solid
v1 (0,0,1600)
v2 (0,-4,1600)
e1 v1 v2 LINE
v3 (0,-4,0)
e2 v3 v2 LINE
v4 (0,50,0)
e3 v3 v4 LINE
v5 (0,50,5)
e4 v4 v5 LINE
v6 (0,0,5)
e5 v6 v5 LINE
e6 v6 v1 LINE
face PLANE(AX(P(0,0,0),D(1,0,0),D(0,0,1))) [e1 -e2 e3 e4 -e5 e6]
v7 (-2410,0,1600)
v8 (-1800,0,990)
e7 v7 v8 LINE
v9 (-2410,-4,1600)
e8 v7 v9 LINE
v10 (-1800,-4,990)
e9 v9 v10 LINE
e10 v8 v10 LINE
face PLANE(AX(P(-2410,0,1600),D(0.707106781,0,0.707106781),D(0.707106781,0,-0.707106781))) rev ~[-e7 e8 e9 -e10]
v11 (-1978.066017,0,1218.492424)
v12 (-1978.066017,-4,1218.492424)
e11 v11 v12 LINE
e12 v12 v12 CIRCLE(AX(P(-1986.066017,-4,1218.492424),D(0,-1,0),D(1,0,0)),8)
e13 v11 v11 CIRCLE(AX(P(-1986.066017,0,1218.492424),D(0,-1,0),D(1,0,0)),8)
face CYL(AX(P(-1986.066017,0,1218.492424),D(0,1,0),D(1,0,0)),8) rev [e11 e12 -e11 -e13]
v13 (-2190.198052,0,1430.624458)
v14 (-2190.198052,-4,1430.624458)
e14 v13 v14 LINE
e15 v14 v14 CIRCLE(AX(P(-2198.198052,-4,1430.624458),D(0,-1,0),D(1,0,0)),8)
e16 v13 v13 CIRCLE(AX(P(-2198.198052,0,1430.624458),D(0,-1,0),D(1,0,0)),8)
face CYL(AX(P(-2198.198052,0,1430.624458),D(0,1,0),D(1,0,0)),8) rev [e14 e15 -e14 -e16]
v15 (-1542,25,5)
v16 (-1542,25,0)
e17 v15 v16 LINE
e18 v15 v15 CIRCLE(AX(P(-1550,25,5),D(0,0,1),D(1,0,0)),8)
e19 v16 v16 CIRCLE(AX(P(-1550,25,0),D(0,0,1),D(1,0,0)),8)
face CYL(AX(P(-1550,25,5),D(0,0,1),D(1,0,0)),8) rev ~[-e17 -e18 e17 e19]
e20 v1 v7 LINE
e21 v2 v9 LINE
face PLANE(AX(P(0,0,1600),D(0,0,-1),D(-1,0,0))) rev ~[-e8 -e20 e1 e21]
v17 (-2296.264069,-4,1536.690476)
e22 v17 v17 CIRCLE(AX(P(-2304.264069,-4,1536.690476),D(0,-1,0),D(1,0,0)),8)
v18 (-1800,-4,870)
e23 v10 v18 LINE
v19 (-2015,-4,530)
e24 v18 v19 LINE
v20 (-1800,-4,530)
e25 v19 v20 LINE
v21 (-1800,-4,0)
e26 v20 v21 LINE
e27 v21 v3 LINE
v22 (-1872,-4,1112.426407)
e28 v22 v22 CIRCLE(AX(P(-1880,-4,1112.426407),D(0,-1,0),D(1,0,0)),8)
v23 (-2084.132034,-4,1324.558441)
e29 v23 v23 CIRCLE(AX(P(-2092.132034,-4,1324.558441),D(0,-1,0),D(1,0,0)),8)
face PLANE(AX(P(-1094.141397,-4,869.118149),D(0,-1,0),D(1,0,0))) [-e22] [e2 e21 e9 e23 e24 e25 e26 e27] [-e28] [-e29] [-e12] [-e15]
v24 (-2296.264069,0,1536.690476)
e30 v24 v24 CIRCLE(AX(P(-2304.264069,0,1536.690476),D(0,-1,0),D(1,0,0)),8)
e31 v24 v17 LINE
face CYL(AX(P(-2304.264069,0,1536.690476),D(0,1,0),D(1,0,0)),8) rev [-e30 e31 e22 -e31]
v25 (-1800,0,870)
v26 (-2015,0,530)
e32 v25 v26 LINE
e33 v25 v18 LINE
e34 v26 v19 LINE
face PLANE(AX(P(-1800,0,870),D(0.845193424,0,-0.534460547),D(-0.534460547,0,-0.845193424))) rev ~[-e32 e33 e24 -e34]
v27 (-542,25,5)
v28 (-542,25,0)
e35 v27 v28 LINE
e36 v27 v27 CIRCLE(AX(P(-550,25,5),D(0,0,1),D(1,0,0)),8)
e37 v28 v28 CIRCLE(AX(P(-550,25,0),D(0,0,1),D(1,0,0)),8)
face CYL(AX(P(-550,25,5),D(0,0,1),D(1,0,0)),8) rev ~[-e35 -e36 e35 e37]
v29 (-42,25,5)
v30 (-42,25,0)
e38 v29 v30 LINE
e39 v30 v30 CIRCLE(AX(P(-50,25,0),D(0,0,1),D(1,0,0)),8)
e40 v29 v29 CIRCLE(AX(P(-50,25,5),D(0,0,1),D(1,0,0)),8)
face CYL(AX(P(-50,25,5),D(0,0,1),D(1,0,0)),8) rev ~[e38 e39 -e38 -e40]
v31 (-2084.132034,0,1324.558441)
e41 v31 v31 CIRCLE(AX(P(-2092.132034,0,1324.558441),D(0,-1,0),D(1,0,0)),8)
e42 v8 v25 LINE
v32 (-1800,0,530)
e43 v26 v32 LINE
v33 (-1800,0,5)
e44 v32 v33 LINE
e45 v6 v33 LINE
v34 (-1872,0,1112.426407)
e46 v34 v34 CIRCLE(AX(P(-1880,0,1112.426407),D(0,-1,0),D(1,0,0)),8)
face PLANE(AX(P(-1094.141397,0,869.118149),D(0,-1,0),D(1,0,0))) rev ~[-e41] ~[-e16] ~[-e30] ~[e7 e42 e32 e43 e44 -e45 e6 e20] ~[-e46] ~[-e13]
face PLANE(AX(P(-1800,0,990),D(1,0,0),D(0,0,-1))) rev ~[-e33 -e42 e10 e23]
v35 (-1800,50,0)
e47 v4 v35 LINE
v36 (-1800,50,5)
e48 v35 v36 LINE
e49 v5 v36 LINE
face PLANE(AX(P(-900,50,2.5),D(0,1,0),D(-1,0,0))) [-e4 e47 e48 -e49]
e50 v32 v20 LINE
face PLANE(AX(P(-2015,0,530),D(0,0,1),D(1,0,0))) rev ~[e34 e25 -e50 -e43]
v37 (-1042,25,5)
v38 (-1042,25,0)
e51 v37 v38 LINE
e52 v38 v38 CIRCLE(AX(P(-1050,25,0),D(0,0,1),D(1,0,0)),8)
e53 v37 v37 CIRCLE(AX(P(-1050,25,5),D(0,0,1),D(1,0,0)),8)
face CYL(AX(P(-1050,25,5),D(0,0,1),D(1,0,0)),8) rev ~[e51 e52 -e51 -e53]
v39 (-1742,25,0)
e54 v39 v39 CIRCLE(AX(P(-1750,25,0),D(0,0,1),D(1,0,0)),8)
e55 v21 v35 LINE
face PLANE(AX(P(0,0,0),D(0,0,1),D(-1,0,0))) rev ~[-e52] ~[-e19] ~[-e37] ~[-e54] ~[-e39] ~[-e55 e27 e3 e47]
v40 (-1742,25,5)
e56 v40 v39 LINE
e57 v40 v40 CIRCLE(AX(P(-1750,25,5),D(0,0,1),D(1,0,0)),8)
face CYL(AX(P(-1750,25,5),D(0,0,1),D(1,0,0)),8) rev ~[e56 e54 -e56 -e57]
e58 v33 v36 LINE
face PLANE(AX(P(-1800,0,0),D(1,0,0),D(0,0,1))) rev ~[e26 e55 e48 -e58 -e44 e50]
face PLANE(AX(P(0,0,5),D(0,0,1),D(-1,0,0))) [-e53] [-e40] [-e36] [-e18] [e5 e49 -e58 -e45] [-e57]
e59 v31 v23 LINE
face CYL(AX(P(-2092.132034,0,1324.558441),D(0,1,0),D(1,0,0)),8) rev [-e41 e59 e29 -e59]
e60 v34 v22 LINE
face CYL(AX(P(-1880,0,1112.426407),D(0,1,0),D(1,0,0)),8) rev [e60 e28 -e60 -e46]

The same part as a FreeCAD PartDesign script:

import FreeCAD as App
import Part
import Sketcher
Q = App.Units.Quantity

doc = App.newDocument("Part")
params = doc.addObject("Spreadsheet::Sheet", "Params")
for row, (alias, value) in enumerate([
    ("sketch1_diameter", "16 mm"),
    ("sketch1_width", "1800 mm"),
    ("sketch1_width2", "2410 mm"),
    ("sketch1_width3", "215 mm"),
    ("sketch1_height", "1600 mm"),
    ("pad1_length", "4 mm"),
    ("sketch2_width", "1800 mm"),
    ("sketch2_height", "5 mm"),
    ("pad2_length", "50 mm"),
    ("sketch3_diameter", "16 mm"),
    ("pocket1_length", "25 mm"),
], start=1):
    params.set(f"A{row}", alias)
    params.set(f"B{row}", "=" + value)
    params.setAlias(f"B{row}", alias)

body = doc.addObject("PartDesign::Body", "Body")

sketch1 = doc.addObject("Sketcher::SketchObject", "Sketch")
body.addObject(sketch1)
sketch1.AttachmentSupport = (doc.XZ_Plane, [""])
sketch1.MapMode = "FlatFace"
sketch1.addGeometry([
    Part.LineSegment(App.Vector(-1800, 0, 0), App.Vector(0, 0, 0)),
    Part.LineSegment(App.Vector(0, 0, 0), App.Vector(0, 1600, 0)),
    Part.LineSegment(App.Vector(0, 1600, 0), App.Vector(-2410, 1600, 0)),
    Part.LineSegment(App.Vector(-2410, 1600, 0), App.Vector(-1800, 990, 0)),
    Part.LineSegment(App.Vector(-1800, 990, 0), App.Vector(-1800, 870, 0)),
    Part.LineSegment(App.Vector(-1800, 870, 0), App.Vector(-2015, 530, 0)),
    Part.LineSegment(App.Vector(-2015, 530, 0), App.Vector(-1800, 530, 0)),
    Part.LineSegment(App.Vector(-1800, 530, 0), App.Vector(-1800, 0, 0)),
    Part.Circle(App.Vector(-1880, 1112, 0), App.Vector(0, 0, 1), 8),
    Part.Circle(App.Vector(-1986, 1218, 0), App.Vector(0, 0, 1), 8),
    Part.Circle(App.Vector(-2092, 1325, 0), App.Vector(0, 0, 1), 8),
    Part.Circle(App.Vector(-2198, 1431, 0), App.Vector(0, 0, 1), 8),
    Part.Circle(App.Vector(-2304, 1537, 0), App.Vector(0, 0, 1), 8),
], False)
sketch1.addConstraint([
    Sketcher.Constraint("Coincident", 0, 2, 1, 1),
    Sketcher.Constraint("Coincident", 1, 2, 2, 1),
    Sketcher.Constraint("Coincident", 2, 2, 3, 1),
    Sketcher.Constraint("Coincident", 3, 2, 4, 1),
    Sketcher.Constraint("Coincident", 4, 2, 5, 1),
    Sketcher.Constraint("Coincident", 5, 2, 6, 1),
    Sketcher.Constraint("Coincident", 6, 2, 7, 1),
    Sketcher.Constraint("Coincident", 7, 2, 0, 1),
    Sketcher.Constraint("Horizontal", 0),
    Sketcher.Constraint("Vertical", 1),
    Sketcher.Constraint("Horizontal", 2),
    Sketcher.Constraint("Vertical", 4),
    Sketcher.Constraint("Horizontal", 6),
    Sketcher.Constraint("Vertical", 7),
    Sketcher.Constraint("Coincident", 0, 2, -1, 1),
    Sketcher.Constraint("Equal", 8, 9),
    Sketcher.Constraint("Equal", 9, 10),
    Sketcher.Constraint("Equal", 10, 11),
    Sketcher.Constraint("Equal", 11, 12),
    Sketcher.Constraint("Vertical", 4, 2, 6, 2),
    Sketcher.Constraint("Diameter", 8, 16.0),
    Sketcher.Constraint("DistanceX", 0, 1, 0, 2, 1800.0),
    Sketcher.Constraint("DistanceX", 2, 2, 2, 1, 2410.0),
    Sketcher.Constraint("DistanceX", 6, 1, 6, 2, 215.0),
    Sketcher.Constraint("DistanceY", 1, 1, 1, 2, 1600.0),
    Sketcher.Constraint("DistanceY", 4, 2, 4, 1, 120.0),
    Sketcher.Constraint("DistanceY", 7, 2, 7, 1, 530.0),
    Sketcher.Constraint("Angle", 3, Q("-45 deg")),
    Sketcher.Constraint("DistanceX", 8, 3, -1, 1, 1880.0),
    Sketcher.Constraint("DistanceY", -1, 1, 10, 3, 1324.558441),
    Sketcher.Constraint("DistanceY", -1, 1, 11, 3, 1430.624458),
    Sketcher.Constraint("DistanceX", 12, 3, -1, 1, 2304.264069),
    Sketcher.Constraint("DistanceY", 8, 3, 11, 3, 318.198051),
    Sketcher.Constraint("DistanceX", 12, 3, 9, 3, 318.198052),
    Sketcher.Constraint("DistanceY", 9, 3, 12, 3, 318.198052),
    Sketcher.Constraint("DistanceY", 8, 3, 12, 3, 424.264069),
    Sketcher.Constraint("DistanceX", 10, 3, -1, 1, 2092.132034),
    Sketcher.Constraint("DistanceX", 11, 3, -1, 1, 2198.198052),
])
sketch1.setExpression("Constraints[20]", "Params.sketch1_diameter")
sketch1.setExpression("Constraints[21]", "Params.sketch1_width")
sketch1.setExpression("Constraints[22]", "Params.sketch1_width2")
sketch1.setExpression("Constraints[23]", "Params.sketch1_width3")
sketch1.setExpression("Constraints[24]", "Params.sketch1_height")
pad1 = doc.addObject("PartDesign::Pad", "Pad")
body.addObject(pad1)
pad1.Profile = sketch1
pad1.setExpression("Length", "Params.pad1_length")

sketch2 = doc.addObject("Sketcher::SketchObject", "Sketch001")
body.addObject(sketch2)
sketch2.AttachmentSupport = (doc.XZ_Plane, [""])
sketch2.MapMode = "FlatFace"
sketch2.addGeometry([
    Part.LineSegment(App.Vector(0, 5, 0), App.Vector(0, 0, 0)),
    Part.LineSegment(App.Vector(0, 0, 0), App.Vector(-1800, 0, 0)),
    Part.LineSegment(App.Vector(-1800, 0, 0), App.Vector(-1800, 5, 0)),
    Part.LineSegment(App.Vector(-1800, 5, 0), App.Vector(0, 5, 0)),
], False)
sketch2.addConstraint([
    Sketcher.Constraint("Coincident", 0, 2, 1, 1),
    Sketcher.Constraint("Coincident", 1, 2, 2, 1),
    Sketcher.Constraint("Coincident", 2, 2, 3, 1),
    Sketcher.Constraint("Coincident", 3, 2, 0, 1),
    Sketcher.Constraint("Vertical", 0),
    Sketcher.Constraint("Horizontal", 1),
    Sketcher.Constraint("Vertical", 2),
    Sketcher.Constraint("Horizontal", 3),
    Sketcher.Constraint("Coincident", 0, 2, -1, 1),
    Sketcher.Constraint("DistanceX", 1, 2, 1, 1, 1800.0),
    Sketcher.Constraint("DistanceY", 0, 2, 0, 1, 5.0),
])
sketch2.setExpression("Constraints[9]", "Params.sketch2_width")
sketch2.setExpression("Constraints[10]", "Params.sketch2_height")
pad2 = doc.addObject("PartDesign::Pad", "Pad001")
body.addObject(pad2)
pad2.Profile = sketch2
pad2.setExpression("Length", "Params.pad2_length")
pad2.Reversed = True

sketch3 = doc.addObject("Sketcher::SketchObject", "Sketch002")
body.addObject(sketch3)
sketch3.AttachmentSupport = (doc.XY_Plane, [""])
sketch3.MapMode = "FlatFace"
sketch3.AttachmentOffset = App.Placement(App.Vector(0, 0, 5), App.Rotation())
sketch3.addGeometry([
    Part.Circle(App.Vector(-50, 25, 0), App.Vector(0, 0, 1), 8),
    Part.Circle(App.Vector(-550, 25, 0), App.Vector(0, 0, 1), 8),
    Part.Circle(App.Vector(-1050, 25, 0), App.Vector(0, 0, 1), 8),
    Part.Circle(App.Vector(-1550, 25, 0), App.Vector(0, 0, 1), 8),
    Part.Circle(App.Vector(-1750, 25, 0), App.Vector(0, 0, 1), 8),
], False)
sketch3.addConstraint([
    Sketcher.Constraint("Equal", 0, 1),
    Sketcher.Constraint("Equal", 1, 2),
    Sketcher.Constraint("Equal", 2, 3),
    Sketcher.Constraint("Equal", 3, 4),
    Sketcher.Constraint("Horizontal", 0, 3, 1, 3),
    Sketcher.Constraint("Horizontal", 1, 3, 2, 3),
    Sketcher.Constraint("Horizontal", 2, 3, 3, 3),
    Sketcher.Constraint("Horizontal", 3, 3, 4, 3),
    Sketcher.Constraint("Diameter", 0, 16.0),
    Sketcher.Constraint("DistanceX", 0, 3, -1, 1, 50.0),
    Sketcher.Constraint("DistanceY", -1, 1, 0, 3, 25.0),
    Sketcher.Constraint("DistanceX", 1, 3, -1, 1, 550.0),
    Sketcher.Constraint("DistanceX", 2, 3, -1, 1, 1050.0),
    Sketcher.Constraint("DistanceX", 3, 3, -1, 1, 1550.0),
    Sketcher.Constraint("DistanceX", 4, 3, -1, 1, 1750.0),
])
sketch3.setExpression("Constraints[8]", "Params.sketch3_diameter")
pocket1 = doc.addObject("PartDesign::Pocket", "Pocket")
body.addObject(pocket1)
pocket1.Profile = sketch3
pocket1.setExpression("Length", "Params.pocket1_length")

doc.recompute()
